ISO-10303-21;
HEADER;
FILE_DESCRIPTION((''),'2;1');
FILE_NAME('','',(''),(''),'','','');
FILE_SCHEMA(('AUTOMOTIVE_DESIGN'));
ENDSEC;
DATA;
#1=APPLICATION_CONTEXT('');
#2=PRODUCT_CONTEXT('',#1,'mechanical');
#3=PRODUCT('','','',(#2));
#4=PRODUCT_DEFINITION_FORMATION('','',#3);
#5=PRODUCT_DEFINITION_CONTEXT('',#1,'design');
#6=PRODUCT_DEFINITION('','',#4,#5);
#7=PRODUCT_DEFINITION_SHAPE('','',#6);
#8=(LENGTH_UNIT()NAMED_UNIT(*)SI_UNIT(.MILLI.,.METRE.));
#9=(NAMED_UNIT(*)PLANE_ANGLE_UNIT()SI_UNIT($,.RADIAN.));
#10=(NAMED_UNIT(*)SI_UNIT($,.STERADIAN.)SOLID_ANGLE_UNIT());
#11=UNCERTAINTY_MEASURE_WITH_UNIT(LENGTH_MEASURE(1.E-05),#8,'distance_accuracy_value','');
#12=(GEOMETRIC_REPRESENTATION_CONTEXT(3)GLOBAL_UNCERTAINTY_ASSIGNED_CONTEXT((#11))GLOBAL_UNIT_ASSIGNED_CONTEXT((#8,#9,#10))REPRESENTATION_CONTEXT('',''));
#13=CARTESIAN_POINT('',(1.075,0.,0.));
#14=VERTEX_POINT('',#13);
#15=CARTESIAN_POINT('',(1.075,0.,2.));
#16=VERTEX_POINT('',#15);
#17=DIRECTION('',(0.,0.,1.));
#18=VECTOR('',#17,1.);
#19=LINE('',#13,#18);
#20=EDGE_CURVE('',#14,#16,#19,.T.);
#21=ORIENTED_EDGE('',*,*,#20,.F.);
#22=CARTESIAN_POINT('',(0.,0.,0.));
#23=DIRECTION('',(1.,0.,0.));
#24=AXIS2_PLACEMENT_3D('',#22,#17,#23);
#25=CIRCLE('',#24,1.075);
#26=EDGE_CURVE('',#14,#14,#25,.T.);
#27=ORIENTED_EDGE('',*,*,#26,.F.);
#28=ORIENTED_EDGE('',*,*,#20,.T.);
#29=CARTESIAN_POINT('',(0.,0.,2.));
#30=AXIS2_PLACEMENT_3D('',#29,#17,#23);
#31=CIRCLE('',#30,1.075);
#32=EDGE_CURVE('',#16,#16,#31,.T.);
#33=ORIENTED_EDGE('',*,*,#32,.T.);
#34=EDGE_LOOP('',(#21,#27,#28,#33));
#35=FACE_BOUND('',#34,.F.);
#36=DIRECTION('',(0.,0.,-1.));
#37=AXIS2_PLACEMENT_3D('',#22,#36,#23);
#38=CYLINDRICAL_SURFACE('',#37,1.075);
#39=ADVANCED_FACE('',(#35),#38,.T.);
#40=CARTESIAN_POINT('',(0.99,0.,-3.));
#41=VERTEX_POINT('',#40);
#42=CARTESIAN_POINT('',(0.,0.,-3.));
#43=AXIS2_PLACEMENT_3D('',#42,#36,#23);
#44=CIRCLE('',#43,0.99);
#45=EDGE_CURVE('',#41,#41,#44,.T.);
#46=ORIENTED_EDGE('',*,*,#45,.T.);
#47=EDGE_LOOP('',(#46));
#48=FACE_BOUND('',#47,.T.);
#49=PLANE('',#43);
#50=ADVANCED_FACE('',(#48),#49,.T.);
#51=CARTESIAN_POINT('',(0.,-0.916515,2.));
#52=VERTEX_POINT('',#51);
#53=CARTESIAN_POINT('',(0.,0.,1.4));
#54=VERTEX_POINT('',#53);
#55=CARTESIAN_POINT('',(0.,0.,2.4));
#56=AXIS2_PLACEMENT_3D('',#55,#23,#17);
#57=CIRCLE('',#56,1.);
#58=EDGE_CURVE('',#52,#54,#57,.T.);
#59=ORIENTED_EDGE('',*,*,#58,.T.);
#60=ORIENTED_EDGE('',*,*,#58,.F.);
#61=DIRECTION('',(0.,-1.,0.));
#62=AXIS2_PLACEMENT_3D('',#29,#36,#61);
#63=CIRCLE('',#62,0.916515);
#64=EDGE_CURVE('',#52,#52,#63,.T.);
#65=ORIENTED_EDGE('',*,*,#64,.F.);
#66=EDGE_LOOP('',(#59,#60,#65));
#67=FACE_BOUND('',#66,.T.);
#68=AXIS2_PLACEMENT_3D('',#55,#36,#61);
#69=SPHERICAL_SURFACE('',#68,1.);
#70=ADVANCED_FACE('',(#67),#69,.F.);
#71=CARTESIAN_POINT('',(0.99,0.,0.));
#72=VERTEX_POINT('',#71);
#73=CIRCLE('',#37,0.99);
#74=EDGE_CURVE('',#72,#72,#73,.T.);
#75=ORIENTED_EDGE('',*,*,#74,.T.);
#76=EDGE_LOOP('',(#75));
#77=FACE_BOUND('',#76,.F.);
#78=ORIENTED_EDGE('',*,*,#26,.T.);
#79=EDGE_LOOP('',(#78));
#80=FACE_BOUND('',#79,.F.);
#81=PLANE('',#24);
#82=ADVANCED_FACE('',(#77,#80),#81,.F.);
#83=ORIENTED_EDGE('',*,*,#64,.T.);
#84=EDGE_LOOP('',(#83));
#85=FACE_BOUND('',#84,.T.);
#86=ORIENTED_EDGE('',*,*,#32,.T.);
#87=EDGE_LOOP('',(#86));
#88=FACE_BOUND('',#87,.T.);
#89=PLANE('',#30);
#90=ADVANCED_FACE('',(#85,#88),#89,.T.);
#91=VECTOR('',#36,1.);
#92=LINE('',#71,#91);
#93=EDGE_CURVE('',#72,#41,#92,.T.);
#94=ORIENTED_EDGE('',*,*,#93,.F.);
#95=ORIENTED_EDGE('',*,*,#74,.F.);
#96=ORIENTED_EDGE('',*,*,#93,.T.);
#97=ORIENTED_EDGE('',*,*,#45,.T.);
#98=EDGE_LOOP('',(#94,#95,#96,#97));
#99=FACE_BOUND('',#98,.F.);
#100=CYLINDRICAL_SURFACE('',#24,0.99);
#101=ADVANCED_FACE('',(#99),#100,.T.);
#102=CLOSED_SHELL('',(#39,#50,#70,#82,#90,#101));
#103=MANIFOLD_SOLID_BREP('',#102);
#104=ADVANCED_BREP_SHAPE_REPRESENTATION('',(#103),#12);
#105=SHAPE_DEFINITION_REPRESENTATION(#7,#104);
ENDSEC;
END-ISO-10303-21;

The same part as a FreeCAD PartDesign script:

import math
import FreeCAD as App
import Part
import Sketcher
from FreeCAD import Vector
Q = App.Units.Quantity

doc = App.newDocument("Part")
params = doc.addObject("Spreadsheet::Sheet", "Params")
for row, (alias, value) in enumerate([
    ("sketch1_diameter", "2.15 mm"),
    ("pad1_length", "2 mm"),
    ("sketch2_diameter", "1.98 mm"),
    ("pad2_length", "3 mm"),
    ("sketch3_radius", "1 mm"),
    ("groove_angle", "360 deg"),
], start=1):
    params.set(f"A{row}", alias)
    params.set(f"B{row}", "=" + value)
    params.setAlias(f"B{row}", alias)

body = doc.addObject("PartDesign::Body", "Body")

# Sketch on XY plane
sketch1 = body.newObject("Sketcher::SketchObject", "Sketch")
sketch1.AttachmentSupport = (doc.getObject("XY_Plane"), [""])
sketch1.MapMode = "FlatFace"
sketch1.addGeometry(Part.Circle(Vector(0, 0, 0), Vector(0, 0, 1), 1.1), False)
sketch1.addConstraint([
    Sketcher.Constraint("Coincident", 0, 3, -1, 1),
    Sketcher.Constraint("Diameter", 0, Q("2.15 mm")),
])
sketch1.setExpression("Constraints[1]", "Params.sketch1_diameter")
pad1 = body.newObject("PartDesign::Pad", "Pad")
pad1.Profile = sketch1
pad1.setExpression("Length", "Params.pad1_length")

# Sketch on XY plane
sketch2 = body.newObject("Sketcher::SketchObject", "Sketch001")
sketch2.AttachmentSupport = (doc.getObject("XY_Plane"), [""])
sketch2.MapMode = "FlatFace"
sketch2.addGeometry(Part.Circle(Vector(0, 0, 0), Vector(0, 0, 1), 1), False)
sketch2.addConstraint([
    Sketcher.Constraint("Coincident", 0, 3, -1, 1),
    Sketcher.Constraint("Diameter", 0, Q("1.98 mm")),
])
sketch2.setExpression("Constraints[1]", "Params.sketch2_diameter")
pad2 = body.newObject("PartDesign::Pad", "Pad001")
pad2.Profile = sketch2
pad2.setExpression("Length", "Params.pad2_length")
pad2.Reversed = True

# Sketch on YZ plane
sketch3 = body.newObject("Sketcher::SketchObject", "Sketch002")
sketch3.AttachmentSupport = (doc.getObject("YZ_Plane"), [""])
sketch3.MapMode = "FlatFace"
sketch3.addGeometry([
    Part.LineSegment(Vector(0, 1.4, 0), Vector(0, 3.4, 0)),
    Part.ArcOfCircle(Part.Circle(Vector(0, 2.4, 0), Vector(0, 0, 1), 1), math.radians(90), math.radians(270)),
], False)
sketch3.addConstraint([
    Sketcher.Constraint("Coincident", 0, 1, 1, 2),
    Sketcher.Constraint("Coincident", 1, 1, 0, 2),
    Sketcher.Constraint("Vertical", 0),
    Sketcher.Constraint("PointOnObject", 1, 3, -2),
    Sketcher.Constraint("PointOnObject", 0, 1, -2),
    Sketcher.Constraint("Radius", 1, Q("1 mm")),
    Sketcher.Constraint("DistanceY", -1, 1, 1, 3, Q("2.4 mm")),
])
sketch3.setExpression("Constraints[5]", "Params.sketch3_radius")
groove = body.newObject("PartDesign::Groove", "Groove")
groove.Profile = sketch3
groove.ReferenceAxis = (sketch3, ["V_Axis"])
groove.setExpression("Angle", "Params.groove_angle")

doc.recompute()
